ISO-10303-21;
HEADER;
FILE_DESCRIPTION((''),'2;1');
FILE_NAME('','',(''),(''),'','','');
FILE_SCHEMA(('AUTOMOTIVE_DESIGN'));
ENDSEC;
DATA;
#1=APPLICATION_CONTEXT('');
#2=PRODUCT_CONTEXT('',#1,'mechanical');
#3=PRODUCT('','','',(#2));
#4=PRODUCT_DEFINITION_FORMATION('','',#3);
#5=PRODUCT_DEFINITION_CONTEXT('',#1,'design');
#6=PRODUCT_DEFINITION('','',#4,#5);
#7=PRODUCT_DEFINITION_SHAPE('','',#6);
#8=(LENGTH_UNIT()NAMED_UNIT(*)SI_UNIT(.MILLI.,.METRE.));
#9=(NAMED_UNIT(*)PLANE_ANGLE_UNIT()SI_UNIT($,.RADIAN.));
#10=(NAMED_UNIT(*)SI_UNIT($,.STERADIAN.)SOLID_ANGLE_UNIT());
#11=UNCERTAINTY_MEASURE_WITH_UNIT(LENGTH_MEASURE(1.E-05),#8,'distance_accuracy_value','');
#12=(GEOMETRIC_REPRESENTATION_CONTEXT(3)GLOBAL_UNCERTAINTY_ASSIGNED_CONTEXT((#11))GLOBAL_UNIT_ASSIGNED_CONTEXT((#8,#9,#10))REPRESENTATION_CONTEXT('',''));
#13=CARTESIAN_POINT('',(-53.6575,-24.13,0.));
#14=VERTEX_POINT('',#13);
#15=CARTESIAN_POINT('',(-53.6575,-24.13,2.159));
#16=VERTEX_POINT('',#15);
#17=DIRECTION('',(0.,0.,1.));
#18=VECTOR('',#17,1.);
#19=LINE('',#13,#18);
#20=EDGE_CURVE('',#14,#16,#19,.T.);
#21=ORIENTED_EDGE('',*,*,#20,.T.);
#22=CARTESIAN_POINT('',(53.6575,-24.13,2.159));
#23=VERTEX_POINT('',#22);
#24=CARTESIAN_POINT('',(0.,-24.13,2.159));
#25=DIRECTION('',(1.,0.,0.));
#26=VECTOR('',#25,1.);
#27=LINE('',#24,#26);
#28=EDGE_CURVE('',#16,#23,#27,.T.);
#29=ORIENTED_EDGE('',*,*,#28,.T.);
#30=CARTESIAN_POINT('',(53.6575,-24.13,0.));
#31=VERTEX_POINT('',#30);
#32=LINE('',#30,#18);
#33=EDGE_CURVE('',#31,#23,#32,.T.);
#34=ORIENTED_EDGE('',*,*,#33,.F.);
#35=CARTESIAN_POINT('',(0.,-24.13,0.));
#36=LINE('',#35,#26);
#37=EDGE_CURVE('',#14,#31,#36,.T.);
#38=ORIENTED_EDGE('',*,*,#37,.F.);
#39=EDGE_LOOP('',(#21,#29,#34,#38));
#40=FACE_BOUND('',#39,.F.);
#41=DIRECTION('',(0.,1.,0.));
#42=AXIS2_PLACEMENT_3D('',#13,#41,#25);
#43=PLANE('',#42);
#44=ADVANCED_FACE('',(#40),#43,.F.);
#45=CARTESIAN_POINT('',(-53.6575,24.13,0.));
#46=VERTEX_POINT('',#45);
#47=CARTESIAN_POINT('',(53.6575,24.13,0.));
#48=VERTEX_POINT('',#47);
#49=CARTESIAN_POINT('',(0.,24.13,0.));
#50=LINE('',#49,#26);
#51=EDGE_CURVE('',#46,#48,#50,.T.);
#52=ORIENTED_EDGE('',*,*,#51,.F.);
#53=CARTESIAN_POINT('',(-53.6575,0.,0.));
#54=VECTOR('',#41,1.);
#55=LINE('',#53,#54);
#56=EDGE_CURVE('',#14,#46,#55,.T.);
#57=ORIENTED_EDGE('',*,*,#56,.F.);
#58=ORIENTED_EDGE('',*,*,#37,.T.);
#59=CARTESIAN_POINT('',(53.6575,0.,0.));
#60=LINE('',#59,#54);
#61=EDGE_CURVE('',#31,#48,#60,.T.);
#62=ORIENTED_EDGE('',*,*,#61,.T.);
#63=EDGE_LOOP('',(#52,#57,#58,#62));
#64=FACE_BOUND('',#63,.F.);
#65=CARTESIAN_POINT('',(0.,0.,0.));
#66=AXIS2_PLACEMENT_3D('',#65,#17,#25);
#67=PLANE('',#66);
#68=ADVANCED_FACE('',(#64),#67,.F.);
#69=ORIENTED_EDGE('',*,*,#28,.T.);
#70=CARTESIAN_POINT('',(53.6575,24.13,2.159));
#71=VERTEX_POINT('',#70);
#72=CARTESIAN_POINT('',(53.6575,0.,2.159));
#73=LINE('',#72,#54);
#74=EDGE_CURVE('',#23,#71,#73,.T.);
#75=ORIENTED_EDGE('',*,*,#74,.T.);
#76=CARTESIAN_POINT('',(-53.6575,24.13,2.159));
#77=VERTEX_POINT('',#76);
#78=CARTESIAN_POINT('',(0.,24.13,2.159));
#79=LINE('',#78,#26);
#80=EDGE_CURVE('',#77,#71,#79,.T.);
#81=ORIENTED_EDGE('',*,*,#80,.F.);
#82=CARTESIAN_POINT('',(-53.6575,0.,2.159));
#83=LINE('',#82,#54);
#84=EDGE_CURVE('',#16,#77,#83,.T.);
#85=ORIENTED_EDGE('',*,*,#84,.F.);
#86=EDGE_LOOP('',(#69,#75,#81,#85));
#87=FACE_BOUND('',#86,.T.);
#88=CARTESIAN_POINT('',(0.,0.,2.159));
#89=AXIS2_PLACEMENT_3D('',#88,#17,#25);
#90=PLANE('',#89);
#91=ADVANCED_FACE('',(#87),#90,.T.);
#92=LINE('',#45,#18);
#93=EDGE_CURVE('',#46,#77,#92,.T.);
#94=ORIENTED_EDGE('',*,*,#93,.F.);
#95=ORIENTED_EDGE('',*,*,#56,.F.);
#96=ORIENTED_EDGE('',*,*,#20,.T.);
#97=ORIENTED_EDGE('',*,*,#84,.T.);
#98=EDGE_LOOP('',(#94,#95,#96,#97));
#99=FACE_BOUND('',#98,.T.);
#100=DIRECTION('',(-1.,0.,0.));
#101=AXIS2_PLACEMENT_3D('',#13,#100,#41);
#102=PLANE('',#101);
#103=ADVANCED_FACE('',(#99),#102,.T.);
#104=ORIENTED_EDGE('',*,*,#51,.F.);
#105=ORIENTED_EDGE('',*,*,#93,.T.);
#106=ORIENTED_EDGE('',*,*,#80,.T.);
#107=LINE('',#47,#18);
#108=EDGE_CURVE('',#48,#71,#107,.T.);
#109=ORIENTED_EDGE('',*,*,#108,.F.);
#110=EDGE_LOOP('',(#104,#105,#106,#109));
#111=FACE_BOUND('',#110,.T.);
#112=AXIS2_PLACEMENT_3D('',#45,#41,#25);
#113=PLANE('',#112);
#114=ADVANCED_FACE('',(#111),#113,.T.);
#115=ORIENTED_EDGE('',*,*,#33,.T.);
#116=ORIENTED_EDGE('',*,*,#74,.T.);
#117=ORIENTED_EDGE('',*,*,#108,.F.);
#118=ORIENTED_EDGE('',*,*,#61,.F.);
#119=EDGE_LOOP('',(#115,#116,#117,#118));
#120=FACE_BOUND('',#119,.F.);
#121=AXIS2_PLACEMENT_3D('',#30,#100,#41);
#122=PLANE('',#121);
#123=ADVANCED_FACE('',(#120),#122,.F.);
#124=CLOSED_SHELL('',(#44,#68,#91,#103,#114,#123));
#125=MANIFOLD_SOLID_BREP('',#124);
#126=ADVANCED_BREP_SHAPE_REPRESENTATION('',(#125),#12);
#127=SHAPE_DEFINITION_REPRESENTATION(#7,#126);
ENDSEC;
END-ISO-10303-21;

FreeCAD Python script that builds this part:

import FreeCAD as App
import Part
import Sketcher
from FreeCAD import Vector
Q = App.Units.Quantity


def add_polygon(sketch, points):
    """Adds a closed chain of lines whose ends are joined by coincident constraints."""
    first, n = sketch.GeometryCount, len(points)
    for a, b in zip(points, points[1:] + points[:1]):
        sketch.addGeometry(Part.LineSegment(App.Vector(*a, 0), App.Vector(*b, 0)), False)
    for i in range(n):
        sketch.addConstraint(Sketcher.Constraint("Coincident", first + i, 2, first + (i + 1) % n, 1))

doc = App.newDocument("Part")
body = doc.addObject("PartDesign::Body", "Body")

# Sketch on XY plane
sketch1 = body.newObject("Sketcher::SketchObject", "Sketch")
sketch1.AttachmentSupport = (doc.getObject("XY_Plane"), [""])
sketch1.MapMode = "FlatFace"
add_polygon(sketch1, [(-53.6575, 24.13), (-53.6575, -24.13), (53.6575, -24.13), (53.6575, 24.13)])  # lines 0-3
sketch1.addConstraint([
    Sketcher.Constraint("Vertical", 0),
    Sketcher.Constraint("Horizontal", 1),
    Sketcher.Constraint("Vertical", 2),
    Sketcher.Constraint("Horizontal", 3),
    Sketcher.Constraint("Symmetric", 0, 2, 2, 2, -1, 1),
    Sketcher.Constraint("DistanceY", 0, 2, 0, 1, Q("1.9 in")),
    Sketcher.Constraint("DistanceX", 1, 1, 1, 2, Q("4.225 in")),
])
pad1 = body.newObject("PartDesign::Pad", "Pad")
pad1.Profile = sketch1
pad1.Length = Q("0.085 in")

doc.recompute()
